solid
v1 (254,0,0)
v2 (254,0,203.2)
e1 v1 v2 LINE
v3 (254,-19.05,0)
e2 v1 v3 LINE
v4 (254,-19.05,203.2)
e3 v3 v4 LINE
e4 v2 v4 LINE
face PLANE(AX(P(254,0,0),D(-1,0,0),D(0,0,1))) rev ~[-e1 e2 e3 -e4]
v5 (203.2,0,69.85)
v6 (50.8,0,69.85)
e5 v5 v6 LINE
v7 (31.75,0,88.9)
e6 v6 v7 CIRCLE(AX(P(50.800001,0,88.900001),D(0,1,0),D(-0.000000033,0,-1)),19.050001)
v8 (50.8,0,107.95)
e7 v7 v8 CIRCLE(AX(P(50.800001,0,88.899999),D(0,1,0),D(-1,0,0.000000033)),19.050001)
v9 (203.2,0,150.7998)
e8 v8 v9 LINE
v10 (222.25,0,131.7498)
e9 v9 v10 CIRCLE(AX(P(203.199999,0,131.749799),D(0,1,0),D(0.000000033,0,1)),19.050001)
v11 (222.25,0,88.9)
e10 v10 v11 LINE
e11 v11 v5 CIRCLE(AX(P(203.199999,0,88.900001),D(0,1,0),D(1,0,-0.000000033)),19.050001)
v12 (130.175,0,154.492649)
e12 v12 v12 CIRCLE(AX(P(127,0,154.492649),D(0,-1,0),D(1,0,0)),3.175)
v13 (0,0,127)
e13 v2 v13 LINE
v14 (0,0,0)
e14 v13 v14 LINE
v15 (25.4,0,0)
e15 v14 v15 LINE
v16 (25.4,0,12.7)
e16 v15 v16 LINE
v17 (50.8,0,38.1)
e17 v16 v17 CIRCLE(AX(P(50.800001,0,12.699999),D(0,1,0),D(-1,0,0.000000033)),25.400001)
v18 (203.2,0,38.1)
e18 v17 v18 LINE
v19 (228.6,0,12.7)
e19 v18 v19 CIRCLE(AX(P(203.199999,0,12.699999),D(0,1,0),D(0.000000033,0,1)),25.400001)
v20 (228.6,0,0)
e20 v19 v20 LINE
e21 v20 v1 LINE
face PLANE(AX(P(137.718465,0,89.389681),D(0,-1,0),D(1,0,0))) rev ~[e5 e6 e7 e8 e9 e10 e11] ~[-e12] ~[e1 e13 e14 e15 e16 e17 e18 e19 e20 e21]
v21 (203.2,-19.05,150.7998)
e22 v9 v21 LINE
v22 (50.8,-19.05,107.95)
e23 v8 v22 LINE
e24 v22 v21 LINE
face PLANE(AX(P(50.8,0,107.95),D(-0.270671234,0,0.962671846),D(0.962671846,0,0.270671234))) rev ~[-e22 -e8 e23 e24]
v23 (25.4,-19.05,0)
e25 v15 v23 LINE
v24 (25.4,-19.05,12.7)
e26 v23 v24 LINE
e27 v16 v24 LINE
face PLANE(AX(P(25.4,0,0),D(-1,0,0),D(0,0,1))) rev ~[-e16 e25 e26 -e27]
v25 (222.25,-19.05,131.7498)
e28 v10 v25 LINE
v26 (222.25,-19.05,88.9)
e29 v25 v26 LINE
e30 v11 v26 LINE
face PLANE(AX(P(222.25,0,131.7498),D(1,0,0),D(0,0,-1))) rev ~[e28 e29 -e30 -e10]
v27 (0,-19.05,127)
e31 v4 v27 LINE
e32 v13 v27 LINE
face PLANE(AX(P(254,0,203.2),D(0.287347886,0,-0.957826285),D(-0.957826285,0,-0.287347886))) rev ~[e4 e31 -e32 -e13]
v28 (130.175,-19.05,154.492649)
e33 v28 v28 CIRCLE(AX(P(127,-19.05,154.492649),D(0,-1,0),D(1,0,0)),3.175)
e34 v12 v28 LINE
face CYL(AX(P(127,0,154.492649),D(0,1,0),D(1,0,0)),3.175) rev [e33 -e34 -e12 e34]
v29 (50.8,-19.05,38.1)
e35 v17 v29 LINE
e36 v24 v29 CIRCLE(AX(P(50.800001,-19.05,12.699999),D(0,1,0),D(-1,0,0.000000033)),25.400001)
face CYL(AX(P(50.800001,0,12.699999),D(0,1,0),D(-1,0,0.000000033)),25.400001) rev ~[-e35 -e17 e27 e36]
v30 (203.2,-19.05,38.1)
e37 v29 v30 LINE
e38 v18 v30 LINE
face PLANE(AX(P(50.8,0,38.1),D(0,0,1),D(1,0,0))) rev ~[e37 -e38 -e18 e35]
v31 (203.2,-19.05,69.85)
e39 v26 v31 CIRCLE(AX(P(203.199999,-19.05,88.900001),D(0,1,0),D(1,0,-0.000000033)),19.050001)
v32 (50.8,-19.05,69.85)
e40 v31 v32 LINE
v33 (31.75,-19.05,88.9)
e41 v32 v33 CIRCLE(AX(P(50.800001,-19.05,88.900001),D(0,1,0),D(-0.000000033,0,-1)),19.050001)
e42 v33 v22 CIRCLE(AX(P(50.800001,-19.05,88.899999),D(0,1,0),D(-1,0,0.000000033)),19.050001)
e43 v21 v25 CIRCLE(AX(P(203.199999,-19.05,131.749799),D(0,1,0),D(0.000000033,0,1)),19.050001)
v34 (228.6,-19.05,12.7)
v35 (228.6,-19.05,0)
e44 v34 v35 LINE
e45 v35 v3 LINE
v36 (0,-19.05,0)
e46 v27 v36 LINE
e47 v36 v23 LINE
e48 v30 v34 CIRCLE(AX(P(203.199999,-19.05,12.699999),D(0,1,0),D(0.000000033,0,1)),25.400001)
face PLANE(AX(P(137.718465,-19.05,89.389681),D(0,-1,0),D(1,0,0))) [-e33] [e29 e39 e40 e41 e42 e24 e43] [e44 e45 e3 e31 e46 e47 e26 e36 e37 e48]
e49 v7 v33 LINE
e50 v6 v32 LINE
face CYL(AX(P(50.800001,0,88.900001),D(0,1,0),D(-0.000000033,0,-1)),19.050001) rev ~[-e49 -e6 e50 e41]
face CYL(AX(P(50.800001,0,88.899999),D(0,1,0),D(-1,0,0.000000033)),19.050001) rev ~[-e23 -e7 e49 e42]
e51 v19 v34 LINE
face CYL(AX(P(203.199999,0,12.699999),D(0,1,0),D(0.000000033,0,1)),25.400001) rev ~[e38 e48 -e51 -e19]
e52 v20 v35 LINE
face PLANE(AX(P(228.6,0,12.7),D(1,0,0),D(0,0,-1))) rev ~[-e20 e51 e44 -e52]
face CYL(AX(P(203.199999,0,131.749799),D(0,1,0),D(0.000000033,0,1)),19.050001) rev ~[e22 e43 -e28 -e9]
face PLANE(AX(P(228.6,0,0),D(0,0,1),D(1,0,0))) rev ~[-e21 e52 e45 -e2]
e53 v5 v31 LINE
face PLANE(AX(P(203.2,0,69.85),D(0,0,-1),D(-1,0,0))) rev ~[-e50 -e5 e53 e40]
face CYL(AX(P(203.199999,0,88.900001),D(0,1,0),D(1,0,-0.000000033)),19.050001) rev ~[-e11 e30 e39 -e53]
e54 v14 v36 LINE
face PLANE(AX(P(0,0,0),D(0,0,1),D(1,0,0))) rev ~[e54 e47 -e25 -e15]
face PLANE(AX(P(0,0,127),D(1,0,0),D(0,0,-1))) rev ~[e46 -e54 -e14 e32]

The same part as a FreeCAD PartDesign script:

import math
import FreeCAD as App
import Part
import Sketcher
Q = App.Units.Quantity

doc = App.newDocument("Part")
params = doc.addObject("Spreadsheet::Sheet", "Params")
for row, (alias, value) in enumerate([
    ("sketch1_radius", "1 in"),
    ("sketch1_diameter", "0.25 in"),
    ("sketch1_width", "1 in"),
    ("sketch1_width2", "6 in"),
    ("sketch1_height", "5 in"),
    ("pad1_length", "0.75 in"),
], start=1):
    params.set(f"A{row}", alias)
    params.set(f"B{row}", "=" + value)
    params.setAlias(f"B{row}", alias)

body = doc.addObject("PartDesign::Body", "Body")

# Sketch on XZ plane
sketch1 = body.newObject("Sketcher::SketchObject", "Sketch")
sketch1.AttachmentSupport = (doc.getObject("XZ_Plane"), [""])
sketch1.MapMode = "FlatFace"
sketch1.addGeometry(Part.LineSegment(App.Vector(0, 127, 0), App.Vector(0, 0, 0)), False)
sketch1.addGeometry(Part.LineSegment(App.Vector(0, 0, 0), App.Vector(25.4, 0, 0)), False)
sketch1.addGeometry(Part.LineSegment(App.Vector(25.4, 0, 0), App.Vector(25.4, 12.7, 0)), False)
sketch1.addGeometry(Part.ArcOfCircle(Part.Circle(App.Vector(50.800001, 12.699999, 0), App.Vector(0, 0, 1), 25.400001), math.radians(90.000002), math.radians(179.999998)), False)
sketch1.addGeometry(Part.LineSegment(App.Vector(50.8, 38.1, 0), App.Vector(203.2, 38.1, 0)), False)
sketch1.addGeometry(Part.ArcOfCircle(Part.Circle(App.Vector(203.199999, 12.699999, 0), App.Vector(0, 0, 1), 25.400001), math.radians(0.000002), math.radians(89.999998)), False)
sketch1.addGeometry(Part.LineSegment(App.Vector(228.6, 12.7, 0), App.Vector(228.6, 0, 0)), False)
sketch1.addGeometry(Part.LineSegment(App.Vector(228.6, 0, 0), App.Vector(254, 0, 0)), False)
sketch1.addGeometry(Part.LineSegment(App.Vector(254, 0, 0), App.Vector(254, 203.2, 0)), False)
sketch1.addGeometry(Part.LineSegment(App.Vector(254, 203.2, 0), App.Vector(0, 127, 0)), False)
sketch1.addGeometry(Part.LineSegment(App.Vector(222.25, 131.7498, 0), App.Vector(222.25, 88.9, 0)), False)
sketch1.addGeometry(Part.ArcOfCircle(Part.Circle(App.Vector(203.199999, 88.900001, 0), App.Vector(0, 0, 1), 19.050001), math.radians(-89.999998), math.radians(-0.000002)), False)
sketch1.addGeometry(Part.LineSegment(App.Vector(203.2, 69.85, 0), App.Vector(50.8, 69.85, 0)), False)
sketch1.addGeometry(Part.ArcOfCircle(Part.Circle(App.Vector(50.800001, 88.900001, 0), App.Vector(0, 0, 1), 19.050001), math.radians(-179.999998), math.radians(-90.000002)), False)
sketch1.addGeometry(Part.ArcOfCircle(Part.Circle(App.Vector(50.800001, 88.899999, 0), App.Vector(0, 0, 1), 19.050001), math.radians(90.000002), math.radians(179.999998)), False)
sketch1.addGeometry(Part.LineSegment(App.Vector(50.8, 107.95, 0), App.Vector(203.2, 150.7998, 0)), False)
sketch1.addGeometry(Part.ArcOfCircle(Part.Circle(App.Vector(203.199999, 131.749799, 0), App.Vector(0, 0, 1), 19.050001), math.radians(0.000002), math.radians(89.999998)), False)
sketch1.addGeometry(Part.Circle(App.Vector(127, 154.492649, 0), App.Vector(0, 0, 1), 3.175), False)
sketch1.addConstraint(Sketcher.Constraint("Coincident", 0, 2, 1, 1))
sketch1.addConstraint(Sketcher.Constraint("Coincident", 1, 2, 2, 1))
sketch1.addConstraint(Sketcher.Constraint("Tangent", 2, 2, 3, 2))
sketch1.addConstraint(Sketcher.Constraint("Tangent", 3, 1, 4, 1))
sketch1.addConstraint(Sketcher.Constraint("Tangent", 4, 2, 5, 2))
sketch1.addConstraint(Sketcher.Constraint("Tangent", 5, 1, 6, 1))
sketch1.addConstraint(Sketcher.Constraint("Coincident", 6, 2, 7, 1))
sketch1.addConstraint(Sketcher.Constraint("Coincident", 7, 2, 8, 1))
sketch1.addConstraint(Sketcher.Constraint("Coincident", 8, 2, 9, 1))
sketch1.addConstraint(Sketcher.Constraint("Coincident", 9, 2, 0, 1))
sketch1.addConstraint(Sketcher.Constraint("Tangent", 10, 2, 11, 2))
sketch1.addConstraint(Sketcher.Constraint("Tangent", 11, 1, 12, 1))
sketch1.addConstraint(Sketcher.Constraint("Tangent", 12, 2, 13, 2))
sketch1.addConstraint(Sketcher.Constraint("Tangent", 13, 1, 14, 2))
sketch1.addConstraint(Sketcher.Constraint("Coincident", 14, 1, 15, 1))
sketch1.addConstraint(Sketcher.Constraint("Coincident", 15, 2, 16, 2))
sketch1.addConstraint(Sketcher.Constraint("Tangent", 16, 1, 10, 1))
sketch1.addConstraint(Sketcher.Constraint("Vertical", 0))
sketch1.addConstraint(Sketcher.Constraint("Horizontal", 1))
sketch1.addConstraint(Sketcher.Constraint("Vertical", 2))
sketch1.addConstraint(Sketcher.Constraint("Horizontal", 4))
sketch1.addConstraint(Sketcher.Constraint("Vertical", 6))
sketch1.addConstraint(Sketcher.Constraint("Horizontal", 7))
sketch1.addConstraint(Sketcher.Constraint("Vertical", 8))
sketch1.addConstraint(Sketcher.Constraint("Vertical", 10))
sketch1.addConstraint(Sketcher.Constraint("Horizontal", 12))
sketch1.addConstraint(Sketcher.Constraint("Coincident", 0, 2, -1, 1))
sketch1.addConstraint(Sketcher.Constraint("Equal", 3, 5))
sketch1.addConstraint(Sketcher.Constraint("Equal", 11, 13))
sketch1.addConstraint(Sketcher.Constraint("Equal", 13, 14))
sketch1.addConstraint(Sketcher.Constraint("Equal", 14, 16))
sketch1.addConstraint(Sketcher.Constraint("PointOnObject", 6, 2, -1))
sketch1.addConstraint(Sketcher.Constraint("Horizontal", 10, 2, 13, 1))
sketch1.addConstraint(Sketcher.Constraint("Vertical", 5, 3, 11, 3))
sketch1.addConstraint(Sketcher.Constraint("Vertical", 3, 3, 13, 3))
sketch1.addConstraint(Sketcher.Constraint("Vertical", 12, 2, 14, 1))
sketch1.addConstraint(Sketcher.Constraint("Vertical", 11, 1, 15, 2))
sketch1.addConstraint(Sketcher.Constraint("Equal", 1, 7))
sketch1.addConstraint(Sketcher.Constraint("Radius", 3, Q("1 in")))
sketch1.addConstraint(Sketcher.Constraint("Diameter", 17, Q("0.25 in")))
sketch1.addConstraint(Sketcher.Constraint("DistanceX", 1, 1, 1, 2, Q("1 in")))
sketch1.addConstraint(Sketcher.Constraint("DistanceX", 4, 1, 4, 2, Q("6 in")))
sketch1.addConstraint(Sketcher.Constraint("DistanceY", 0, 2, 0, 1, Q("5 in")))
sketch1.addConstraint(Sketcher.Constraint("DistanceY", 8, 1, 8, 2, Q("8 in")))
sketch1.addConstraint(Sketcher.Constraint("Radius", 11, Q("0.75 in")))
sketch1.addConstraint(Sketcher.Constraint("DistanceY", 2, 1, 2, 2, Q("0.5 in")))
sketch1.addConstraint(Sketcher.Constraint("DistanceX", -1, 1, 17, 3, Q("5 in")))
sketch1.addConstraint(Sketcher.Constraint("DistanceY", 5, 3, 11, 3, Q("3.0000001 in")))
sketch1.addConstraint(Sketcher.Constraint("DistanceY", 10, 2, 10, 1, Q("1.687 in")))
sketch1.addConstraint(Sketcher.Constraint("DistanceY", -1, 1, 17, 3, 154.492649))
sketch1.setExpression("Constraints[38]", "Params.sketch1_radius")
sketch1.setExpression("Constraints[39]", "Params.sketch1_diameter")
sketch1.setExpression("Constraints[40]", "Params.sketch1_width")
sketch1.setExpression("Constraints[41]", "Params.sketch1_width2")
sketch1.setExpression("Constraints[42]", "Params.sketch1_height")
pad1 = body.newObject("PartDesign::Pad", "Pad")
pad1.Profile = sketch1
pad1.setExpression("Length", "Params.pad1_length")

doc.recompute()
